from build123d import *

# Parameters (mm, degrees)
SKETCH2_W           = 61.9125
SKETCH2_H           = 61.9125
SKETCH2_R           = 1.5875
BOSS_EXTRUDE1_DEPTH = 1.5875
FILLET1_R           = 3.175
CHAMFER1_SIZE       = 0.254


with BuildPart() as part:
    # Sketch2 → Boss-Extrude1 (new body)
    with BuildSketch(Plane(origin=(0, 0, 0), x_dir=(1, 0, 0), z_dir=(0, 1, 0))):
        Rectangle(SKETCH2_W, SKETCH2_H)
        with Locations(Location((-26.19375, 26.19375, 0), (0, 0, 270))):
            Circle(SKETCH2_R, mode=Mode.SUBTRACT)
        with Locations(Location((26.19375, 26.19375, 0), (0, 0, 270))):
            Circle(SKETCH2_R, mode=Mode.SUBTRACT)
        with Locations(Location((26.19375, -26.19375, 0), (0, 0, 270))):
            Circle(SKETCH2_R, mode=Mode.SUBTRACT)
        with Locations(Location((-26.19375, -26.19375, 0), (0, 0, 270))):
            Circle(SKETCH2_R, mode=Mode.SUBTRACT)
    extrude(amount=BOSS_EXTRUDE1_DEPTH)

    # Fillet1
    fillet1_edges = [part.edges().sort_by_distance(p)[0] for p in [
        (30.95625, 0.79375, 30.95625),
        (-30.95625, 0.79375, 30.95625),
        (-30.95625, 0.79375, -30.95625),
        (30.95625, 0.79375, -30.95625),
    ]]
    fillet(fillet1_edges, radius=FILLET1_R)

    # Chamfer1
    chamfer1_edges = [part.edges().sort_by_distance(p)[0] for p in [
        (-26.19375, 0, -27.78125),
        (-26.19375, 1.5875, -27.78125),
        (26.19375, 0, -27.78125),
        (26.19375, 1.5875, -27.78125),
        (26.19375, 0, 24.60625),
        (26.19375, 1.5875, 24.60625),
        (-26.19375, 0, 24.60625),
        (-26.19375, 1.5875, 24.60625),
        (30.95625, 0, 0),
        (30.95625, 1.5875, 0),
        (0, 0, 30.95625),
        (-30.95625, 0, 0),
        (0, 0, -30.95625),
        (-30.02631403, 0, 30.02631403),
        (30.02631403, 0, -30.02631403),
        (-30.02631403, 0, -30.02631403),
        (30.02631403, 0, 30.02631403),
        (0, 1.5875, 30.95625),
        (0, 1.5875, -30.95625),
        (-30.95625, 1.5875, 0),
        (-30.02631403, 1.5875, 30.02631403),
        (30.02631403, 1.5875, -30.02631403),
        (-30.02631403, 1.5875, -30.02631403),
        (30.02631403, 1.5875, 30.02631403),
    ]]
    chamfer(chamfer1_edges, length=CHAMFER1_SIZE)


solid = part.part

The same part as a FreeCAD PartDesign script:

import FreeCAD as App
import Part
import Sketcher
Q = App.Units.Quantity


def edges_at(feature, points):
    """Names of the edges that pass closest to the given points."""
    edges = feature.Shape.Edges
    near = lambda p: min(range(len(edges)), key=lambda i: edges[i].distToShape(Part.Vertex(*p))[0])
    return sorted({f"Edge{near(p) + 1}" for p in points})

doc = App.newDocument("Part")
body = doc.addObject("PartDesign::Body", "Body")

sketch1 = doc.addObject("Sketcher::SketchObject", "Sketch")
body.addObject(sketch1)
sketch1.AttachmentSupport = (doc.XZ_Plane, [""])
sketch1.MapMode = "FlatFace"
sketch1.addGeometry(Part.LineSegment(App.Vector(-31, -31, 0), App.Vector(-31, 31, 0)), False)
sketch1.addGeometry(Part.LineSegment(App.Vector(-31, 31, 0), App.Vector(31, 31, 0)), False)
sketch1.addGeometry(Part.LineSegment(App.Vector(31, 31, 0), App.Vector(31, -31, 0)), False)
sketch1.addGeometry(Part.LineSegment(App.Vector(31, -31, 0), App.Vector(-31, -31, 0)), False)
sketch1.addGeometry(Part.Circle(App.Vector(-26.2, 26.2, 0), App.Vector(0, 0, 1), 1.6), False)
sketch1.addGeometry(Part.Circle(App.Vector(26.2, 26.2, 0), App.Vector(0, 0, 1), 1.6), False)
sketch1.addGeometry(Part.Circle(App.Vector(-26.2, -26.2, 0), App.Vector(0, 0, 1), 1.6), False)
sketch1.addGeometry(Part.Circle(App.Vector(26.2, -26.2, 0), App.Vector(0, 0, 1), 1.6), False)
sketch1.addConstraint(Sketcher.Constraint("Coincident", 0, 2, 1, 1))
sketch1.addConstraint(Sketcher.Constraint("Coincident", 1, 2, 2, 1))
sketch1.addConstraint(Sketcher.Constraint("Coincident", 2, 2, 3, 1))
sketch1.addConstraint(Sketcher.Constraint("Coincident", 3, 2, 0, 1))
sketch1.addConstraint(Sketcher.Constraint("Vertical", 0))
sketch1.addConstraint(Sketcher.Constraint("Horizontal", 1))
sketch1.addConstraint(Sketcher.Constraint("Vertical", 2))
sketch1.addConstraint(Sketcher.Constraint("Horizontal", 3))
sketch1.addConstraint(Sketcher.Constraint("Equal", 4, 5))
sketch1.addConstraint(Sketcher.Constraint("Equal", 5, 6))
sketch1.addConstraint(Sketcher.Constraint("Equal", 6, 7))
sketch1.addConstraint(Sketcher.Constraint("Symmetric", 5, 3, 6, 3, -1, 1))
sketch1.addConstraint(Sketcher.Constraint("Symmetric", 4, 3, 7, 3, -1, 1))
sketch1.addConstraint(Sketcher.Constraint("Symmetric", 0, 2, 2, 2, -1, 1))
sketch1.addConstraint(Sketcher.Constraint("Symmetric", 4, 3, 5, 3, -2))
sketch1.addConstraint(Sketcher.Constraint("Equal", 3, 0))
sketch1.addConstraint(Sketcher.Constraint("Diameter", 4, Q("0.125 in")))
sketch1.addConstraint(Sketcher.Constraint("DistanceX", 1, 1, 1, 2, Q("2.4375 in")))
sketch1.addConstraint(Sketcher.Constraint("DistanceX", 0, 2, 5, 3, Q("2.25 in")))
sketch1.addConstraint(Sketcher.Constraint("DistanceY", 6, 3, 0, 2, Q("2.25 in")))
pad1 = doc.addObject("PartDesign::Pad", "Pad")
body.addObject(pad1)
pad1.Profile = sketch1
pad1.Length = Q("0.0625 in")
pad1.Reversed = True
doc.recompute()

fillet = doc.addObject("PartDesign::Fillet", "Fillet")
body.addObject(fillet)
fillet.Base = (pad1, edges_at(pad1, [
    (30.956, 0.794, 30.956),
    (-30.956, 0.794, 30.956),
    (-30.956, 0.794, -30.956),
    (30.956, 0.794, -30.956),
]))
fillet.Radius = Q("0.125 in")
doc.recompute()

chamfer = doc.addObject("PartDesign::Chamfer", "Chamfer")
body.addObject(chamfer)
chamfer.Base = (fillet, edges_at(fillet, [
    (-26.194, 0, -27.781),
    (-26.194, 1.587, -27.781),
    (26.194, 0, -27.781),
    (26.194, 1.587, -27.781),
    (26.194, 0, 24.606),
    (26.194, 1.587, 24.606),
    (-26.194, 0, 24.606),
    (-26.194, 1.587, 24.606),
    (30.956, 0, 0),
    (30.956, 1.587, 0),
    (0, 0, 30.956),
    (-30.956, 0, 0),
    (0, 0, -30.956),
    (-30.026, 0, 30.026),
    (30.026, 0, -30.026),
    (-30.026, 0, -30.026),
    (30.026, 0, 30.026),
    (0, 1.587, 30.956),
    (0, 1.587, -30.956),
    (-30.956, 1.587, 0),
    (-30.026, 1.587, 30.026),
    (30.026, 1.587, -30.026),
    (-30.026, 1.587, -30.026),
    (30.026, 1.587, 30.026),
]))
chamfer.Size = Q("0.01 in")

doc.recompute()
